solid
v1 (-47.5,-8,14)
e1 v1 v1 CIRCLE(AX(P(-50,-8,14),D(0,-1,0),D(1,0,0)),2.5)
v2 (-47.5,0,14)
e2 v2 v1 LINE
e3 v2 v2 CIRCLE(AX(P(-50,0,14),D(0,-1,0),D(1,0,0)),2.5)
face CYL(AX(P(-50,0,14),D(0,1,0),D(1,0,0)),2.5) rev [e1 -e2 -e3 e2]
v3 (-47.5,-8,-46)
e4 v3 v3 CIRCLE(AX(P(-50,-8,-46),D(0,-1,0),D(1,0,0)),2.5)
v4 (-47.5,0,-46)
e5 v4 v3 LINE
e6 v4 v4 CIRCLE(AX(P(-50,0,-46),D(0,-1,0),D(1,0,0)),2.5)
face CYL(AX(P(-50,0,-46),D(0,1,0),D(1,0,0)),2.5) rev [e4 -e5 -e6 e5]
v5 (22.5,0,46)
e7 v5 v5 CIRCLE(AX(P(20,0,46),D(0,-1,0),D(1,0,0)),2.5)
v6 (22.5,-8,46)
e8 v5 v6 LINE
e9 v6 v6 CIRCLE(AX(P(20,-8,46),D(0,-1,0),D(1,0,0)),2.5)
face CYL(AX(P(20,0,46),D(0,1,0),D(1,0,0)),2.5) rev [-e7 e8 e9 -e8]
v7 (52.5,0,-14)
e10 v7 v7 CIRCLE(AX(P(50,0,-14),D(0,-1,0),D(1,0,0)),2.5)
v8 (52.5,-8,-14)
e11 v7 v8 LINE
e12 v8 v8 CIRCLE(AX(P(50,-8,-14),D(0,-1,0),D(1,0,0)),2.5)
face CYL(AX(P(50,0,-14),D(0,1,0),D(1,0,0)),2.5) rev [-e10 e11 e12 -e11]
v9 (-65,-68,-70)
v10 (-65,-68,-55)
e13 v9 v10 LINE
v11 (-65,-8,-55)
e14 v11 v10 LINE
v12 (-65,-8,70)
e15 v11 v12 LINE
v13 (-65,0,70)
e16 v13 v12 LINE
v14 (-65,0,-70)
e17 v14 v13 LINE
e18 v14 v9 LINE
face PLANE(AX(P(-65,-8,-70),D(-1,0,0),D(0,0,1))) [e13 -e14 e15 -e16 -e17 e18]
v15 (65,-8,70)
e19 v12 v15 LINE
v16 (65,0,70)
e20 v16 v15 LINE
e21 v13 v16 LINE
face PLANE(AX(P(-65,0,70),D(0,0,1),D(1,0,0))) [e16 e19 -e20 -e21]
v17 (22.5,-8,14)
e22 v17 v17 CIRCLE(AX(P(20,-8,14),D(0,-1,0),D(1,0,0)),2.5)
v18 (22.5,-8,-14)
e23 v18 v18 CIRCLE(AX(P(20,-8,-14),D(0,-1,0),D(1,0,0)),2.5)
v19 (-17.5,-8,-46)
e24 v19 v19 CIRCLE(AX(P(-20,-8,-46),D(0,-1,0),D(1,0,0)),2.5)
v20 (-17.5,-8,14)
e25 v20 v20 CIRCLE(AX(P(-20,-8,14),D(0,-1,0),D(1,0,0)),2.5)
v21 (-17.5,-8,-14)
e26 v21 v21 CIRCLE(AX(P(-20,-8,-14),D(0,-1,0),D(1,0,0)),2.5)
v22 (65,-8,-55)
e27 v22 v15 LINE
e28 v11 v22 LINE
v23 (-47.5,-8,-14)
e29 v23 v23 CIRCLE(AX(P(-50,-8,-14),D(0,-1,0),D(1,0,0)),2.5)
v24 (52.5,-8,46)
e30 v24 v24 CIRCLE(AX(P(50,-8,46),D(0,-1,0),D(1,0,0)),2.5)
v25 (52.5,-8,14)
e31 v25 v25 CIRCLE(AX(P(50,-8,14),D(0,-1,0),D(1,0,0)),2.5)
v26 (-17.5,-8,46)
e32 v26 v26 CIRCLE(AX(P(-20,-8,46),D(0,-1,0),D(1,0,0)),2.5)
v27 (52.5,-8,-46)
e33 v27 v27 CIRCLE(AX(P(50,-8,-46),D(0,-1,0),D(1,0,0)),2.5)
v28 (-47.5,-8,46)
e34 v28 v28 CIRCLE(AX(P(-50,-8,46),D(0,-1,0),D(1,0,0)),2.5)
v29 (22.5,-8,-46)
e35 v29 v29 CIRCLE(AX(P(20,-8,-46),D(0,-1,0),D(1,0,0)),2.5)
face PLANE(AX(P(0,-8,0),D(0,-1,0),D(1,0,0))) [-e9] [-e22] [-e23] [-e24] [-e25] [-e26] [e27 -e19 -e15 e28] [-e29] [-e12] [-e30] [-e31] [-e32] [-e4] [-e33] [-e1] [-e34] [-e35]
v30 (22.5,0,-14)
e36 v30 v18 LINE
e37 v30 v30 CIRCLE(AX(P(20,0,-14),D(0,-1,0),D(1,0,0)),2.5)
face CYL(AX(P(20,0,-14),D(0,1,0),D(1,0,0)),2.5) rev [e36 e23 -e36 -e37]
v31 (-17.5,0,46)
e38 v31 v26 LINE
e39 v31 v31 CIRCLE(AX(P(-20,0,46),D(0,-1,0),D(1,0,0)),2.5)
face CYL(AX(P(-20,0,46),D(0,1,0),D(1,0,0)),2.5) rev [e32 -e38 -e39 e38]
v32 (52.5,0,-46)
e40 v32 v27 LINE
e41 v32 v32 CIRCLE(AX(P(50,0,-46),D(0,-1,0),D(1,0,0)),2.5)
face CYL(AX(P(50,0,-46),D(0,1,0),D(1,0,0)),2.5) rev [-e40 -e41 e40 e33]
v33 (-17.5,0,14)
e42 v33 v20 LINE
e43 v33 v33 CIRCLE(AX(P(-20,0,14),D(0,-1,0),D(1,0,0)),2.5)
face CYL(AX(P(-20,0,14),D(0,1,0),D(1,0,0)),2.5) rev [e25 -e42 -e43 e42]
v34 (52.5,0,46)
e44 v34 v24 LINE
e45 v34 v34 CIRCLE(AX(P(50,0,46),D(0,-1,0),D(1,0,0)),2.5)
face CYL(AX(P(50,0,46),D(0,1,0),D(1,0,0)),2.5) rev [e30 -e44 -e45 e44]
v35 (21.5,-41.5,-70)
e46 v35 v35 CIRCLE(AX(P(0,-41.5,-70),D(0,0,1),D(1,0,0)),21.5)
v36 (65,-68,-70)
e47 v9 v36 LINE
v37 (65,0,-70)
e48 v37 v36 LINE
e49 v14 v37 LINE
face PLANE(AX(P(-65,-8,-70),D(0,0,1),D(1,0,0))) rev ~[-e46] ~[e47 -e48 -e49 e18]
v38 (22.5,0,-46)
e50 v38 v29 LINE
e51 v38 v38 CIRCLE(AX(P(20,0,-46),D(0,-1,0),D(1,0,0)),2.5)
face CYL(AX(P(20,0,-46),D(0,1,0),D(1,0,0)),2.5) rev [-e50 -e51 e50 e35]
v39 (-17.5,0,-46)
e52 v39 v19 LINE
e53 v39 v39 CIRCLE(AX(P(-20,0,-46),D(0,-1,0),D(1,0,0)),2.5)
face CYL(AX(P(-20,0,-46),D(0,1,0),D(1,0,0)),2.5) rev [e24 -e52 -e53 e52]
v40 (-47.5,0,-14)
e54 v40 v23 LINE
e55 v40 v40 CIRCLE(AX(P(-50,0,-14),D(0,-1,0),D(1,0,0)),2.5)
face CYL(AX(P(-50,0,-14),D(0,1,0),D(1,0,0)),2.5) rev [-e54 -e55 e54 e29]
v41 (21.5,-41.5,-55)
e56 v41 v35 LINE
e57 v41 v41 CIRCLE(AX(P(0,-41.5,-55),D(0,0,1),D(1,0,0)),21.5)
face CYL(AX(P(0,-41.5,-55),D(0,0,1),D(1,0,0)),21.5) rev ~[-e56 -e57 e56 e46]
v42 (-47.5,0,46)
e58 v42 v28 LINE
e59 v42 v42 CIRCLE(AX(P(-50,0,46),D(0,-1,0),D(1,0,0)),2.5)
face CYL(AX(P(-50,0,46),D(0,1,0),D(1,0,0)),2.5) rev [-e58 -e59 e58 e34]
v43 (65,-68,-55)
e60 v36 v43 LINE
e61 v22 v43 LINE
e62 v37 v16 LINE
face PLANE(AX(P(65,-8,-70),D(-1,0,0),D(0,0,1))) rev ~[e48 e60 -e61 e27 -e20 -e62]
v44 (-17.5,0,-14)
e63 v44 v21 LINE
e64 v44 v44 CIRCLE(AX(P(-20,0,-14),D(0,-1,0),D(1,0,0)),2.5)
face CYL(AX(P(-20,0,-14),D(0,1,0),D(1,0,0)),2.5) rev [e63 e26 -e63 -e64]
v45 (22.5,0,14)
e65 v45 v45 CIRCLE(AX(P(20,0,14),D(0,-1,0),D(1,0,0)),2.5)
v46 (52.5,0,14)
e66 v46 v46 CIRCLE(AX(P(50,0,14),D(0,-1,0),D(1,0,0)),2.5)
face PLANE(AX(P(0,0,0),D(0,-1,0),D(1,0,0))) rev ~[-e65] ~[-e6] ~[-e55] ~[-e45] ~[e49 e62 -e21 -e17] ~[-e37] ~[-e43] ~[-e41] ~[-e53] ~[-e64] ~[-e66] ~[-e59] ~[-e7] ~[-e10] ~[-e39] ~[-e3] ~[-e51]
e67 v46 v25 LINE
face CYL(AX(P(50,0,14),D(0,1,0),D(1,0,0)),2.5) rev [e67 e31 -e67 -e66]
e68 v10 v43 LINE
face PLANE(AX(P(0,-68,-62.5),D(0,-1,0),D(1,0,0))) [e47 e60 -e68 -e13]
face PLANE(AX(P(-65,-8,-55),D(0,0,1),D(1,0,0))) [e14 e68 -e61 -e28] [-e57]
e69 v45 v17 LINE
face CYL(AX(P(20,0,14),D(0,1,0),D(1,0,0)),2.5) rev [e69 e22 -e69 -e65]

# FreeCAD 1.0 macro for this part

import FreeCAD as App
import Part
import Sketcher
from FreeCAD import Vector


def add_polygon(sketch, points):
    """Adds a closed chain of lines whose ends are joined by coincident constraints."""
    first, n = sketch.GeometryCount, len(points)
    for a, b in zip(points, points[1:] + points[:1]):
        sketch.addGeometry(Part.LineSegment(App.Vector(*a, 0), App.Vector(*b, 0)), False)
    for i in range(n):
        sketch.addConstraint(Sketcher.Constraint("Coincident", first + i, 2, first + (i + 1) % n, 1))

doc = App.newDocument("Part")
params = doc.addObject("Spreadsheet::Sheet", "Params")
for row, (alias, value) in enumerate([
    ("sketch1_diameter", "5 mm"),
    ("sketch1_width", "130 mm"),
    ("sketch1_height", "140 mm"),
    ("pad1_length", "8 mm"),
    ("sketch2_width", "130 mm"),
    ("sketch2_height", "15 mm"),
    ("pad2_length", "60 mm"),
    ("sketch3_diameter", "43 mm"),
    ("pocket1_length", "25 mm"),
], start=1):
    params.set(f"A{row}", alias)
    params.set(f"B{row}", "=" + value)
    params.setAlias(f"B{row}", alias)

body = doc.addObject("PartDesign::Body", "Body")

# Sketch on XZ plane
sketch1 = doc.addObject("Sketcher::SketchObject", "Sketch")
body.addObject(sketch1)
sketch1.AttachmentSupport = (doc.XZ_Plane, [""])
sketch1.MapMode = "FlatFace"
add_polygon(sketch1, [(-65, 70), (-65, -70), (65, -70), (65, 70)])  # lines 0-3
sketch1.addGeometry(Part.Circle(Vector(-50, -46, 0), Vector(0, 0, 1), 2.5), False)  # 4
sketch1.addGeometry(Part.Circle(Vector(-20, -46, 0), Vector(0, 0, 1), 2.5), False)  # 5
sketch1.addGeometry(Part.Circle(Vector(-50, -14, 0), Vector(0, 0, 1), 2.5), False)  # 6
sketch1.addGeometry(Part.Circle(Vector(-20, -14, 0), Vector(0, 0, 1), 2.5), False)  # 7
sketch1.addGeometry(Part.Circle(Vector(20, -46, 0), Vector(0, 0, 1), 2.5), False)  # 8
sketch1.addGeometry(Part.Circle(Vector(50, -46, 0), Vector(0, 0, 1), 2.5), False)  # 9
sketch1.addGeometry(Part.Circle(Vector(20, -14, 0), Vector(0, 0, 1), 2.5), False)  # 10
sketch1.addGeometry(Part.Circle(Vector(50, -14, 0), Vector(0, 0, 1), 2.5), False)  # 11
sketch1.addGeometry(Part.Circle(Vector(-50, 14, 0), Vector(0, 0, 1), 2.5), False)  # 12
sketch1.addGeometry(Part.Circle(Vector(-20, 14, 0), Vector(0, 0, 1), 2.5), False)  # 13
sketch1.addGeometry(Part.Circle(Vector(-50, 46, 0), Vector(0, 0, 1), 2.5), False)  # 14
sketch1.addGeometry(Part.Circle(Vector(-20, 46, 0), Vector(0, 0, 1), 2.5), False)  # 15
sketch1.addGeometry(Part.Circle(Vector(20, 14, 0), Vector(0, 0, 1), 2.5), False)  # 16
sketch1.addGeometry(Part.Circle(Vector(50, 14, 0), Vector(0, 0, 1), 2.5), False)  # 17
sketch1.addGeometry(Part.Circle(Vector(20, 46, 0), Vector(0, 0, 1), 2.5), False)  # 18
sketch1.addGeometry(Part.Circle(Vector(50, 46, 0), Vector(0, 0, 1), 2.5), False)  # 19
sketch1.addConstraint([
    Sketcher.Constraint("Vertical", 0),
    Sketcher.Constraint("Horizontal", 1),
    Sketcher.Constraint("Vertical", 2),
    Sketcher.Constraint("Horizontal", 3),
    Sketcher.Constraint("Equal", 4, 5),
    Sketcher.Constraint("Equal", 5, 6),
    Sketcher.Constraint("Equal", 6, 7),
    Sketcher.Constraint("Equal", 7, 8),
    Sketcher.Constraint("Equal", 8, 9),
    Sketcher.Constraint("Equal", 9, 10),
    Sketcher.Constraint("Equal", 10, 11),
    Sketcher.Constraint("Equal", 11, 12),
    Sketcher.Constraint("Equal", 12, 13),
    Sketcher.Constraint("Equal", 13, 14),
    Sketcher.Constraint("Equal", 14, 15),
    Sketcher.Constraint("Equal", 15, 16),
    Sketcher.Constraint("Equal", 16, 17),
    Sketcher.Constraint("Equal", 17, 18),
    Sketcher.Constraint("Equal", 18, 19),
    Sketcher.Constraint("Symmetric", 11, 3, 12, 3, -1, 1),
    Sketcher.Constraint("Symmetric", 10, 3, 13, 3, -1, 1),
    Sketcher.Constraint("Symmetric", 9, 3, 14, 3, -1, 1),
    Sketcher.Constraint("Symmetric", 8, 3, 15, 3, -1, 1),
    Sketcher.Constraint("Symmetric", 7, 3, 16, 3, -1, 1),
    Sketcher.Constraint("Symmetric", 6, 3, 17, 3, -1, 1),
    Sketcher.Constraint("Symmetric", 5, 3, 18, 3, -1, 1),
    Sketcher.Constraint("Symmetric", 4, 3, 19, 3, -1, 1),
    Sketcher.Constraint("Symmetric", 0, 2, 2, 2, -1, 1),
    Sketcher.Constraint("Symmetric", 5, 3, 8, 3, -2),
    Sketcher.Constraint("Symmetric", 4, 3, 9, 3, -2),
    Sketcher.Constraint("Symmetric", 7, 3, 10, 3, -2),
    Sketcher.Constraint("Symmetric", 6, 3, 11, 3, -2),
    Sketcher.Constraint("Horizontal", 4, 3, 5, 3),
    Sketcher.Constraint("Horizontal", 6, 3, 7, 3),
    Sketcher.Constraint("Vertical", 4, 3, 6, 3),
    Sketcher.Constraint("Vertical", 5, 3, 7, 3),
    Sketcher.Constraint("Diameter", 4, 5.0),
    Sketcher.Constraint("DistanceX", 1, 1, 1, 2, 130.0),
    Sketcher.Constraint("DistanceY", 0, 2, 0, 1, 140.0),
    Sketcher.Constraint("DistanceX", 4, 3, -1, 1, 50.0),
    Sketcher.Constraint("DistanceY", 4, 3, -1, 1, 46.0),
    Sketcher.Constraint("DistanceX", 5, 3, -1, 1, 20.0),
    Sketcher.Constraint("DistanceY", 6, 3, -1, 1, 14.0),
])
sketch1.setExpression("Constraints[40]", "Params.sketch1_diameter")
sketch1.setExpression("Constraints[41]", "Params.sketch1_width")
sketch1.setExpression("Constraints[42]", "Params.sketch1_height")
pad1 = doc.addObject("PartDesign::Pad", "Pad")
body.addObject(pad1)
pad1.Profile = sketch1
pad1.setExpression("Length", "Params.pad1_length")

# Sketch on XZ plane
sketch2 = doc.addObject("Sketcher::SketchObject", "Sketch001")
body.addObject(sketch2)
sketch2.AttachmentSupport = (doc.XZ_Plane, [""])
sketch2.MapMode = "FlatFace"
sketch2.AttachmentOffset = App.Placement(Vector(0, 0, 8), App.Rotation())
add_polygon(sketch2, [(-65, -55), (-65, -70), (65, -70), (65, -55)])  # lines 0-3
sketch2.addConstraint([
    Sketcher.Constraint("Vertical", 0),
    Sketcher.Constraint("Horizontal", 1),
    Sketcher.Constraint("Vertical", 2),
    Sketcher.Constraint("Horizontal", 3),
    Sketcher.Constraint("DistanceX", 1, 1, 1, 2, 130.0),
    Sketcher.Constraint("DistanceY", 0, 2, 0, 1, 15.0),
    Sketcher.Constraint("DistanceX", 0, 2, -1, 1, 65.0),
    Sketcher.Constraint("DistanceY", 0, 2, -1, 1, 70.0),
])
sketch2.setExpression("Constraints[8]", "Params.sketch2_width")
sketch2.setExpression("Constraints[9]", "Params.sketch2_height")
pad2 = doc.addObject("PartDesign::Pad", "Pad001")
body.addObject(pad2)
pad2.Profile = sketch2
pad2.setExpression("Length", "Params.pad2_length")

# Sketch on XY plane
sketch3 = doc.addObject("Sketcher::SketchObject", "Sketch002")
body.addObject(sketch3)
sketch3.AttachmentSupport = (doc.XY_Plane, [""])
sketch3.MapMode = "FlatFace"
sketch3.AttachmentOffset = App.Placement(Vector(0, 0, -55), App.Rotation())
sketch3.addGeometry(Part.Circle(Vector(0, -42, 0), Vector(0, 0, 1), 22), False)
sketch3.addConstraint([
    Sketcher.Constraint("PointOnObject", 0, 3, -2),
    Sketcher.Constraint("Diameter", 0, 43.0),
    Sketcher.Constraint("DistanceY", 0, 3, -1, 1, 41.5),
])
sketch3.setExpression("Constraints[1]", "Params.sketch3_diameter")
pocket1 = doc.addObject("PartDesign::Pocket", "Pocket")
body.addObject(pocket1)
pocket1.Profile = sketch3
pocket1.setExpression("Length", "Params.pocket1_length")

doc.recompute()
